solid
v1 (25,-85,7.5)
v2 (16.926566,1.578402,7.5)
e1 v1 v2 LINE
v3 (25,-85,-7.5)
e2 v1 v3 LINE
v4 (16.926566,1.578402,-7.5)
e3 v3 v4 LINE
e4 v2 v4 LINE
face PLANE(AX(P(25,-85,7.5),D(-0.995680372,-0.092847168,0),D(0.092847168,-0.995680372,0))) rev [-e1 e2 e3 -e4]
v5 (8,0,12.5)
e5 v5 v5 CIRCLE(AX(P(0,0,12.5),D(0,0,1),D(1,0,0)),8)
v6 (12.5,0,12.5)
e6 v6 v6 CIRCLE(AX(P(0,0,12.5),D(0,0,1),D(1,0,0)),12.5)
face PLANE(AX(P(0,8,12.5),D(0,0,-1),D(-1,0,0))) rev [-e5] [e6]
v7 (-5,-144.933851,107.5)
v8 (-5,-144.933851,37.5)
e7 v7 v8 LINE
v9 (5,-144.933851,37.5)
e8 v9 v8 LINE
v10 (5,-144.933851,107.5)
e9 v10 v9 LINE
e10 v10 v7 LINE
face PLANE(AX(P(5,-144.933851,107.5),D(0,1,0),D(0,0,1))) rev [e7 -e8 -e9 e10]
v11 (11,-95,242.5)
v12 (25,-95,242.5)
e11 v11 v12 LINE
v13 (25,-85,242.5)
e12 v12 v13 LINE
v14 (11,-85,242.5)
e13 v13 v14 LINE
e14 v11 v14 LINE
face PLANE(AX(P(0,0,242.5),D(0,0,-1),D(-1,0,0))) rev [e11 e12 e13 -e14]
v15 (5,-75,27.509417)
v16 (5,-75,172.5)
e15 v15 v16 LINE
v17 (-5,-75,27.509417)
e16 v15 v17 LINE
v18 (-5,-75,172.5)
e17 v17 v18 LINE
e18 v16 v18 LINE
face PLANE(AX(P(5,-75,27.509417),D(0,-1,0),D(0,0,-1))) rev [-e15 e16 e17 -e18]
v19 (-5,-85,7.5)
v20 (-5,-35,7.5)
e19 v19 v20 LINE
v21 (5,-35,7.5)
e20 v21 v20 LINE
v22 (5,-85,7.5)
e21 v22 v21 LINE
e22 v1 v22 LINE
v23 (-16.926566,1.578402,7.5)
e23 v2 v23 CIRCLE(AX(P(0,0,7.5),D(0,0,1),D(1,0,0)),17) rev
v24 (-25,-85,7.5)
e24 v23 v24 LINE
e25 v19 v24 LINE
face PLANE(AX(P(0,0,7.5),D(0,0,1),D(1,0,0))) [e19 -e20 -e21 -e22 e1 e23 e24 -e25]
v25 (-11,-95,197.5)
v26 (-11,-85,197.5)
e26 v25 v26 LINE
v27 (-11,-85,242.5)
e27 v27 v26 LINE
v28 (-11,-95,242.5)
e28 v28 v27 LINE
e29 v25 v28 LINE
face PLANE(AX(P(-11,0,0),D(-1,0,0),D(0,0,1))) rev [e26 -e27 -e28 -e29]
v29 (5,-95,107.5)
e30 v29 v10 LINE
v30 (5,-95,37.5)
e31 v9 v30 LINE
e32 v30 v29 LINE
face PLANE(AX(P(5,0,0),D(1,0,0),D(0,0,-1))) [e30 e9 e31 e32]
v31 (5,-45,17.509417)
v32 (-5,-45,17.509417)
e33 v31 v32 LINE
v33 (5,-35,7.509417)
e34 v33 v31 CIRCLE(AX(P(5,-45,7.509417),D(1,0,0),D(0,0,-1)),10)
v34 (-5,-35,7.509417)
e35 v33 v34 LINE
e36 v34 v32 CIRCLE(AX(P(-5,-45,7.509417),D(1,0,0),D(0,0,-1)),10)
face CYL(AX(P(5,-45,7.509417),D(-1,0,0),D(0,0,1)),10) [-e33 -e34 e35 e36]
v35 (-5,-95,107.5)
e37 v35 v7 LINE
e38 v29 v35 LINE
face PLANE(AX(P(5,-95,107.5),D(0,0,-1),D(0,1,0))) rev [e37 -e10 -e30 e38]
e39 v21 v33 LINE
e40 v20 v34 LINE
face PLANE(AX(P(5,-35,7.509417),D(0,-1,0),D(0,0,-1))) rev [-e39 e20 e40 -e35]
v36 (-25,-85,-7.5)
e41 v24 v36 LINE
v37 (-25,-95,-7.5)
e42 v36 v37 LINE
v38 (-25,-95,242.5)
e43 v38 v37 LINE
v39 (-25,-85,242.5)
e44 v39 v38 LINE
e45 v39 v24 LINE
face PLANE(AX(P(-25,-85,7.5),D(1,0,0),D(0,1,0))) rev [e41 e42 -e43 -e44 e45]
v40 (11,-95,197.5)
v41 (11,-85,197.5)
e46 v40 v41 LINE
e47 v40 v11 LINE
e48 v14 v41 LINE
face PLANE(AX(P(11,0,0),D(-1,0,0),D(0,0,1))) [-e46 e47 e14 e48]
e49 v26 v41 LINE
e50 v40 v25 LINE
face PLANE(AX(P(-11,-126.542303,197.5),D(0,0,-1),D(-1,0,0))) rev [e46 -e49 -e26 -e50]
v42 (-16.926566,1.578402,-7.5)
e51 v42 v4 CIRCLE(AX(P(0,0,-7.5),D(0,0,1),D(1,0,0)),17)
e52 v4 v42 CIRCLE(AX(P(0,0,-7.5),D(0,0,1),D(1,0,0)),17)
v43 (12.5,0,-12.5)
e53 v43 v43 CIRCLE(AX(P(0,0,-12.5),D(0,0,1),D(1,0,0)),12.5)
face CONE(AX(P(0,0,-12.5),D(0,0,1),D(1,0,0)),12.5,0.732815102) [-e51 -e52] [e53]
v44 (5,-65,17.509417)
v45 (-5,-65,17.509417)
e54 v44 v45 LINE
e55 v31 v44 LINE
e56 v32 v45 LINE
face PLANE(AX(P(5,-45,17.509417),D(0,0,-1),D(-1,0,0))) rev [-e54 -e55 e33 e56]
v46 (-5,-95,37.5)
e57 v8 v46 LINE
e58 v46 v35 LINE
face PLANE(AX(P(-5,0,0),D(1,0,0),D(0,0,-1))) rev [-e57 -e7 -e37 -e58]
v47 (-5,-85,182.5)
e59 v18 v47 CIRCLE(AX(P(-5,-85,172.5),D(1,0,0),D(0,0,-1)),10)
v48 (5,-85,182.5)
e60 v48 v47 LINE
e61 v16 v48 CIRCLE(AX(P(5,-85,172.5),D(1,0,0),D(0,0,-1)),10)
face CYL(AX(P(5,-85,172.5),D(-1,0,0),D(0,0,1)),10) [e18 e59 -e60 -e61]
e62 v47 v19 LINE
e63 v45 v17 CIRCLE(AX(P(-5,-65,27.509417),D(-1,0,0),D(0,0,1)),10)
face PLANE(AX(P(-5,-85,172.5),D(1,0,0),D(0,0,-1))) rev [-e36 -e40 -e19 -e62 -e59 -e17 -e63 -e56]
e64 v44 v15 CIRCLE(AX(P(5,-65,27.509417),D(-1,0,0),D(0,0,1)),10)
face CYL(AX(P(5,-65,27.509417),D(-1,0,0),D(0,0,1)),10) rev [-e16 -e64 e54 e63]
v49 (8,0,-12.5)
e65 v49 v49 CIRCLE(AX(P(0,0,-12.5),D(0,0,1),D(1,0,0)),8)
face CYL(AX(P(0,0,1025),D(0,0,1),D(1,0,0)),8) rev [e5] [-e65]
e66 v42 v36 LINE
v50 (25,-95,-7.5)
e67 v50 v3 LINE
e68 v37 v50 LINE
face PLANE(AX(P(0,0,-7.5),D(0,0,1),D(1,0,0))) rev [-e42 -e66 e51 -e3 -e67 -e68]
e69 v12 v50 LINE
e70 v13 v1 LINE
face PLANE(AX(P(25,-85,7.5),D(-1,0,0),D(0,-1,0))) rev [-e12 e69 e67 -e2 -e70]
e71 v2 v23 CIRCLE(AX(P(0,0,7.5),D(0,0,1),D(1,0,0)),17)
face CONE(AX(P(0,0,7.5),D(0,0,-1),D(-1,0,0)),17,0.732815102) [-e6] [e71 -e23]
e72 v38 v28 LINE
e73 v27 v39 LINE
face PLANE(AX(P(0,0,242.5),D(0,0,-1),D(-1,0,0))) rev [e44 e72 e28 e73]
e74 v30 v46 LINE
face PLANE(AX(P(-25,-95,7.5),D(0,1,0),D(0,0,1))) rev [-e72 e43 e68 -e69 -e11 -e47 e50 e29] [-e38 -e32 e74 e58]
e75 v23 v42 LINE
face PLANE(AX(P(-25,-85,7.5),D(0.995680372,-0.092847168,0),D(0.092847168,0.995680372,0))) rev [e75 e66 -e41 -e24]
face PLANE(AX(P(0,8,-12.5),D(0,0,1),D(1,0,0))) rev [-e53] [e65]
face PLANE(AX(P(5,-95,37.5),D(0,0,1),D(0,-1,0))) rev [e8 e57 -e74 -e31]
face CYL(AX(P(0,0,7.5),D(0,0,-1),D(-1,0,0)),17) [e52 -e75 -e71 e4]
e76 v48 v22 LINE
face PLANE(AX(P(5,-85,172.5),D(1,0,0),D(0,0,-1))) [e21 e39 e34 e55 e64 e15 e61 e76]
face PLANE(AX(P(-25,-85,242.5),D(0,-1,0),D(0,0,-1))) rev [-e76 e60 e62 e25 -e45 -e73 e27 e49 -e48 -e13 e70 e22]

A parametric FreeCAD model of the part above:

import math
import FreeCAD as App
import Part
import Sketcher
from FreeCAD import Vector


def add_polygon(sketch, points):
    """Adds a closed chain of lines whose ends are joined by coincident constraints."""
    first, n = sketch.GeometryCount, len(points)
    for a, b in zip(points, points[1:] + points[:1]):
        sketch.addGeometry(Part.LineSegment(App.Vector(*a, 0), App.Vector(*b, 0)), False)
    for i in range(n):
        sketch.addConstraint(Sketcher.Constraint("Coincident", first + i, 2, first + (i + 1) % n, 1))

doc = App.newDocument("Part")
params = doc.addObject("Spreadsheet::Sheet", "Params")
for row, (alias, value) in enumerate([
    ("sketch1_radius", "17 mm"),
    ("sketch1_width", "50 mm"),
    ("sketch1_height", "10 mm"),
    ("pad1_length", "15 mm"),
    ("sketch2_width", "50 mm"),
    ("sketch2_height", "10 mm"),
    ("pad2_length", "235 mm"),
    ("sketch3_width", "9 mm"),
    ("sketch3_height", "5 mm"),
    ("sketch3_width2", "4.5 mm"),
    ("revolution_angle", "360 deg"),
    ("sketch4_radius", "10 mm"),
    ("sketch4_width", "20 mm"),
    ("sketch4_width2", "50 mm"),
    ("sketch4_height", "175 mm"),
    ("sketch4_height2", "70 mm"),
    ("pad3_length", "10 mm"),
    ("sketch5_diameter", "16 mm"),
    ("pocket2_length", "22 mm"),
], start=1):
    params.set(f"A{row}", alias)
    params.set(f"B{row}", "=" + value)
    params.setAlias(f"B{row}", alias)

body = doc.addObject("PartDesign::Body", "Body")

# Sketch on XY plane
sketch1 = doc.addObject("Sketcher::SketchObject", "Sketch")
body.addObject(sketch1)
sketch1.AttachmentSupport = (doc.XY_Plane, [""])
sketch1.MapMode = "FlatFace"
sketch1.addGeometry([
    Part.LineSegment(Vector(-17, 2, 0), Vector(-25, -85, 0)),  # 0
    Part.LineSegment(Vector(-25, -85, 0), Vector(-25, -95, 0)),  # 1
    Part.LineSegment(Vector(-25, -95, 0), Vector(25, -95, 0)),  # 2
    Part.LineSegment(Vector(25, -95, 0), Vector(25, -85, 0)),  # 3
    Part.LineSegment(Vector(25, -85, 0), Vector(17, 2, 0)),  # 4
    Part.ArcOfCircle(Part.Circle(Vector(0, 0, 0), Vector(0, 0, 1), 17), math.radians(5), math.radians(175)),  # 5
], False)
sketch1.addConstraint([
    Sketcher.Constraint("Coincident", 0, 2, 1, 1),
    Sketcher.Constraint("Coincident", 1, 2, 2, 1),
    Sketcher.Constraint("Coincident", 2, 2, 3, 1),
    Sketcher.Constraint("Coincident", 3, 2, 4, 1),
    Sketcher.Constraint("Tangent", 4, 2, 5, 1),
    Sketcher.Constraint("Tangent", 5, 2, 0, 1),
    Sketcher.Constraint("Vertical", 1),
    Sketcher.Constraint("Horizontal", 2),
    Sketcher.Constraint("Vertical", 3),
    Sketcher.Constraint("Coincident", 5, 3, -1, 1),
    Sketcher.Constraint("Symmetric", 0, 2, 3, 2, -2),
    Sketcher.Constraint("Radius", 5, 17.0),
    Sketcher.Constraint("DistanceX", 2, 1, 2, 2, 50.0),
    Sketcher.Constraint("DistanceY", 1, 2, 1, 1, 10.0),
    Sketcher.Constraint("DistanceY", 0, 2, -1, 1, 85.0),
])
sketch1.setExpression("Constraints[11]", "Params.sketch1_radius")
sketch1.setExpression("Constraints[12]", "Params.sketch1_width")
sketch1.setExpression("Constraints[13]", "Params.sketch1_height")
pad1 = doc.addObject("PartDesign::Pad", "Pad")
body.addObject(pad1)
pad1.Profile = sketch1
pad1.setExpression("Length", "Params.pad1_length")
pad1.Midplane = True

# Sketch on XY plane
sketch2 = doc.addObject("Sketcher::SketchObject", "Sketch001")
body.addObject(sketch2)
sketch2.AttachmentSupport = (doc.XY_Plane, [""])
sketch2.MapMode = "FlatFace"
sketch2.AttachmentOffset = App.Placement(Vector(0, 0, 7.5), App.Rotation())
add_polygon(sketch2, [(-25, -85), (-25, -95), (25, -95), (25, -85)])  # lines 0-3
sketch2.addConstraint([
    Sketcher.Constraint("Vertical", 0),
    Sketcher.Constraint("Horizontal", 1),
    Sketcher.Constraint("Vertical", 2),
    Sketcher.Constraint("Horizontal", 3),
    Sketcher.Constraint("DistanceX", 1, 1, 1, 2, 50.0),
    Sketcher.Constraint("DistanceY", 0, 2, 0, 1, 10.0),
    Sketcher.Constraint("DistanceX", 0, 2, -1, 1, 25.0),
    Sketcher.Constraint("DistanceY", 0, 2, -1, 1, 95.0),
])
sketch2.setExpression("Constraints[8]", "Params.sketch2_width")
sketch2.setExpression("Constraints[9]", "Params.sketch2_height")
pad2 = doc.addObject("PartDesign::Pad", "Pad001")
body.addObject(pad2)
pad2.Profile = sketch2
pad2.setExpression("Length", "Params.pad2_length")

# Sketch on YZ plane
sketch3 = doc.addObject("Sketcher::SketchObject", "Sketch002")
body.addObject(sketch3)
sketch3.AttachmentSupport = (doc.YZ_Plane, [""])
sketch3.MapMode = "FlatFace"
add_polygon(sketch3, [(12.5, 12.5), (8, 12.5), (8, 7.5), (17, 7.5)])  # lines 0-3
add_polygon(sketch3, [(8, -7.5), (8, -12.5), (12.5, -12.5), (17, -7.5)])  # lines 4-7
sketch3.addConstraint([
    Sketcher.Constraint("Horizontal", 0),
    Sketcher.Constraint("Vertical", 1),
    Sketcher.Constraint("Horizontal", 2),
    Sketcher.Constraint("Vertical", 4),
    Sketcher.Constraint("Horizontal", 5),
    Sketcher.Constraint("Horizontal", 7),
    Sketcher.Constraint("Symmetric", 0, 2, 4, 2, -1),
    Sketcher.Constraint("Symmetric", 2, 2, 6, 2, -1),
    Sketcher.Constraint("Vertical", 3, 2, 5, 2),
    Sketcher.Constraint("DistanceX", 2, 1, 2, 2, 9.0),
    Sketcher.Constraint("DistanceY", 1, 2, 1, 1, 5.0),
    Sketcher.Constraint("DistanceX", 0, 2, 0, 1, 4.5),
    Sketcher.Constraint("DistanceX", -1, 1, 0, 2, 8.0),
    Sketcher.Constraint("DistanceY", 4, 2, 1, 2, 20.0),
])
sketch3.setExpression("Constraints[17]", "Params.sketch3_width")
sketch3.setExpression("Constraints[18]", "Params.sketch3_height")
sketch3.setExpression("Constraints[19]", "Params.sketch3_width2")
revolution = doc.addObject("PartDesign::Revolution", "Revolution")
body.addObject(revolution)
revolution.Profile = sketch3
revolution.ReferenceAxis = (sketch3, ["V_Axis"])
revolution.setExpression("Angle", "Params.revolution_angle")

# Sketch on YZ plane
sketch4 = doc.addObject("Sketcher::SketchObject", "Sketch003")
body.addObject(sketch4)
sketch4.AttachmentSupport = (doc.YZ_Plane, [""])
sketch4.MapMode = "FlatFace"
sketch4.addGeometry(Part.LineSegment(Vector(-45, 17.509, 0), Vector(-65, 17.509, 0)), False)  # 0
sketch4.addGeometry(Part.ArcOfCircle(Part.Circle(Vector(-65, 27.509, 0), Vector(0, 0, 1), 10), math.radians(180), math.radians(270)), False)  # 1
sketch4.addGeometry(Part.LineSegment(Vector(-75, 27.509, 0), Vector(-75, 172.5, 0)), False)  # 2
sketch4.addGeometry(Part.ArcOfCircle(Part.Circle(Vector(-85, 172.5, 0), Vector(0, 0, 1), 10), math.radians(0), math.radians(90)), False)  # 3
sketch4.addGeometry(Part.LineSegment(Vector(-85, 182.5, 0), Vector(-85, 7.5, 0)), False)  # 4
sketch4.addGeometry(Part.LineSegment(Vector(-85, 7.5, 0), Vector(-35, 7.5, 0)), False)  # 5
sketch4.addGeometry(Part.LineSegment(Vector(-35, 7.5, 0), Vector(-35, 7.509, 0)), False)  # 6
sketch4.addGeometry(Part.ArcOfCircle(Part.Circle(Vector(-45, 7.509, 0), Vector(0, 0, 1), 10), math.radians(0), math.radians(90)), False)  # 7
add_polygon(sketch4, [(-95, 107.5), (-144.934, 107.5), (-144.934, 37.5), (-95, 37.5)])  # lines 8-11
sketch4.addConstraint([
    Sketcher.Constraint("Tangent", 0, 2, 1, 2),
    Sketcher.Constraint("Tangent", 1, 1, 2, 1),
    Sketcher.Constraint("Tangent", 2, 2, 3, 1),
    Sketcher.Constraint("Coincident", 3, 2, 4, 1),
    Sketcher.Constraint("Coincident", 4, 2, 5, 1),
    Sketcher.Constraint("Coincident", 5, 2, 6, 1),
    Sketcher.Constraint("Tangent", 6, 2, 7, 1),
    Sketcher.Constraint("Tangent", 7, 2, 0, 1),
    Sketcher.Constraint("Horizontal", 0),
    Sketcher.Constraint("Vertical", 2),
    Sketcher.Constraint("Vertical", 4),
    Sketcher.Constraint("Horizontal", 5),
    Sketcher.Constraint("Horizontal", 8),
    Sketcher.Constraint("Vertical", 9),
    Sketcher.Constraint("Horizontal", 10),
    Sketcher.Constraint("Vertical", 11),
    Sketcher.Constraint("Equal", 1, 3),
    Sketcher.Constraint("Equal", 3, 7),
    Sketcher.Constraint("Horizontal", 7, 3, 6, 2),
    Sketcher.Constraint("Radius", 1, 10.0),
    Sketcher.Constraint("DistanceX", 0, 2, 0, 1, 20.0),
    Sketcher.Constraint("DistanceX", 5, 1, 5, 2, 50.0),
    Sketcher.Constraint("DistanceY", 4, 2, 4, 1, 175.0),
    Sketcher.Constraint("DistanceY", 9, 2, 9, 1, 70.0),
    Sketcher.Constraint("DistanceX", 1, 3, -1, 1, 65.0),
    Sketcher.Constraint("DistanceX", 10, 2, -1, 1, 95.0),
    Sketcher.Constraint("DistanceY", 8, 2, 3, 3, 65.0),
    Sketcher.Constraint("DistanceY", -1, 1, 3, 3, 172.5),
    Sketcher.Constraint("DistanceX", 8, 2, 8, 1, 49.933851),
    Sketcher.Constraint("DistanceY", 2, 1, 2, 2, 144.990583),
])
sketch4.setExpression("Constraints[23]", "Params.sketch4_radius")
sketch4.setExpression("Constraints[24]", "Params.sketch4_width")
sketch4.setExpression("Constraints[25]", "Params.sketch4_width2")
sketch4.setExpression("Constraints[26]", "Params.sketch4_height")
sketch4.setExpression("Constraints[27]", "Params.sketch4_height2")
pad3 = doc.addObject("PartDesign::Pad", "Pad002")
body.addObject(pad3)
pad3.Profile = sketch4
pad3.setExpression("Length", "Params.pad3_length")
pad3.Midplane = True

# Sketch on XY plane
sketch5 = doc.addObject("Sketcher::SketchObject", "Sketch004")
body.addObject(sketch5)
sketch5.AttachmentSupport = (doc.XY_Plane, [""])
sketch5.MapMode = "FlatFace"
sketch5.AttachmentOffset = App.Placement(Vector(0, 0, 7.5), App.Rotation())
sketch5.addGeometry(Part.Circle(Vector(0, 0, 0), Vector(0, 0, 1), 8), False)
sketch5.addConstraint([
    Sketcher.Constraint("Coincident", 0, 3, -1, 1),
    Sketcher.Constraint("Diameter", 0, 16.0),
])
sketch5.setExpression("Constraints[1]", "Params.sketch5_diameter")
pocket1 = doc.addObject("PartDesign::Pocket", "Pocket")
body.addObject(pocket1)
pocket1.Profile = sketch5
pocket1.Type = "ThroughAll"

# Sketch on YZ plane
sketch6 = doc.addObject("Sketcher::SketchObject", "Sketch005")
body.addObject(sketch6)
sketch6.AttachmentSupport = (doc.YZ_Plane, [""])
sketch6.MapMode = "FlatFace"
add_polygon(sketch6, [(-58, 265), (-127, 265), (-127, 198), (-58, 198)])  # lines 0-3
sketch6.addConstraint([
    Sketcher.Constraint("Horizontal", 0),
    Sketcher.Constraint("Vertical", 1),
    Sketcher.Constraint("Horizontal", 2),
    Sketcher.Constraint("Vertical", 3),
    Sketcher.Constraint("DistanceY", -1, 1, 1, 2, 197.5),
    Sketcher.Constraint("DistanceY", 1, 2, 1, 1, 67.307351),
    Sketcher.Constraint("DistanceX", 0, 2, 0, 1, 68.739533),
    Sketcher.Constraint("DistanceX", 2, 2, -1, 1, 57.80277),
])
pocket2 = doc.addObject("PartDesign::Pocket", "Pocket001")
body.addObject(pocket2)
pocket2.Profile = sketch6
pocket2.setExpression("Length", "Params.pocket2_length")
pocket2.Midplane = True

doc.recompute()
